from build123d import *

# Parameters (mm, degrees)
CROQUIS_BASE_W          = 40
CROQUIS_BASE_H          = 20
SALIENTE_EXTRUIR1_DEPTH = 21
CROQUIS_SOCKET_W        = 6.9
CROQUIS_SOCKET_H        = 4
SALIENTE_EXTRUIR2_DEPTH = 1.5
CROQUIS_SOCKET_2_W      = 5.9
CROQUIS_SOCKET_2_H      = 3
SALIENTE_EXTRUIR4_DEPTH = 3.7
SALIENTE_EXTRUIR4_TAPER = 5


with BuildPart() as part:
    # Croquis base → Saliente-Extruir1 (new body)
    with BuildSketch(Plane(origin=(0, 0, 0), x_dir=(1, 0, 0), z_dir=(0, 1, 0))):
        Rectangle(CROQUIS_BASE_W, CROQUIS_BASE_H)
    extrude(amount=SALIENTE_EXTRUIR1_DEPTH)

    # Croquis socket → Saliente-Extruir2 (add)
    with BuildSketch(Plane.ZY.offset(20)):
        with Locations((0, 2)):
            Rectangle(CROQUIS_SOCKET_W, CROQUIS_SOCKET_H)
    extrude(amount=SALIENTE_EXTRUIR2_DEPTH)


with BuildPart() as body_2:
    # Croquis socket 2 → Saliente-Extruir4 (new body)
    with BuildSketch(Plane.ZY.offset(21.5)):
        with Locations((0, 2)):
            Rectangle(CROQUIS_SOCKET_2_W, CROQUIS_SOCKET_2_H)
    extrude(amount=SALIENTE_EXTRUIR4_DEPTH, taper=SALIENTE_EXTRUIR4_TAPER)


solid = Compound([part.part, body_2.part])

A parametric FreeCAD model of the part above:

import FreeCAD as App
import Part
import Sketcher
Q = App.Units.Quantity

doc = App.newDocument("Part")
body = doc.addObject("PartDesign::Body", "Body")

sketch1 = body.newObject("Sketcher::SketchObject", "Sketch")
sketch1.AttachmentSupport = (doc.getObject("XZ_Plane"), [""])
sketch1.MapMode = "FlatFace"
sketch1.addGeometry(Part.LineSegment(App.Vector(-20, -10, 0), App.Vector(-20, 10, 0)), False)
sketch1.addGeometry(Part.LineSegment(App.Vector(-20, 10, 0), App.Vector(20, 10, 0)), False)
sketch1.addGeometry(Part.LineSegment(App.Vector(20, 10, 0), App.Vector(20, -10, 0)), False)
sketch1.addGeometry(Part.LineSegment(App.Vector(20, -10, 0), App.Vector(-20, -10, 0)), False)
sketch1.addConstraint(Sketcher.Constraint("Coincident", 0, 2, 1, 1))
sketch1.addConstraint(Sketcher.Constraint("Coincident", 1, 2, 2, 1))
sketch1.addConstraint(Sketcher.Constraint("Coincident", 2, 2, 3, 1))
sketch1.addConstraint(Sketcher.Constraint("Coincident", 3, 2, 0, 1))
sketch1.addConstraint(Sketcher.Constraint("Vertical", 0))
sketch1.addConstraint(Sketcher.Constraint("Horizontal", 1))
sketch1.addConstraint(Sketcher.Constraint("Vertical", 2))
sketch1.addConstraint(Sketcher.Constraint("Horizontal", 3))
sketch1.addConstraint(Sketcher.Constraint("Symmetric", 0, 2, 2, 2, -1, 1))
sketch1.addConstraint(Sketcher.Constraint("DistanceX", 1, 1, 1, 2, Q("40 mm")))
sketch1.addConstraint(Sketcher.Constraint("DistanceY", 0, 1, 0, 2, Q("20 mm")))
pad1 = body.newObject("PartDesign::Pad", "Pad")
pad1.Profile = sketch1
pad1.Length = 21
pad1.Reversed = True

sketch2 = body.newObject("Sketcher::SketchObject", "Sketch001")
sketch2.AttachmentSupport = (doc.getObject("YZ_Plane"), [""])
sketch2.MapMode = "FlatFace"
sketch2.AttachmentOffset = App.Placement(App.Vector(0, 0, -20), App.Rotation())
sketch2.addGeometry(Part.LineSegment(App.Vector(4, -3.45, 0), App.Vector(0, -3.45, 0)), False)
sketch2.addGeometry(Part.LineSegment(App.Vector(0, -3.45, 0), App.Vector(0, 3.45, 0)), False)
sketch2.addGeometry(Part.LineSegment(App.Vector(0, 3.45, 0), App.Vector(4, 3.45, 0)), False)
sketch2.addGeometry(Part.LineSegment(App.Vector(4, 3.45, 0), App.Vector(4, -3.45, 0)), False)
sketch2.addConstraint(Sketcher.Constraint("Coincident", 0, 2, 1, 1))
sketch2.addConstraint(Sketcher.Constraint("Coincident", 1, 2, 2, 1))
sketch2.addConstraint(Sketcher.Constraint("Coincident", 2, 2, 3, 1))
sketch2.addConstraint(Sketcher.Constraint("Coincident", 3, 2, 0, 1))
sketch2.addConstraint(Sketcher.Constraint("Horizontal", 0))
sketch2.addConstraint(Sketcher.Constraint("Vertical", 1))
sketch2.addConstraint(Sketcher.Constraint("Horizontal", 2))
sketch2.addConstraint(Sketcher.Constraint("Vertical", 3))
sketch2.addConstraint(Sketcher.Constraint("Symmetric", 0, 2, 1, 2, -1, 1))
sketch2.addConstraint(Sketcher.Constraint("DistanceX", 0, 2, 0, 1, Q("4 mm")))
sketch2.addConstraint(Sketcher.Constraint("DistanceY", 1, 1, 1, 2, Q("6.9 mm")))
pad2 = body.newObject("PartDesign::Pad", "Pad001")
pad2.Profile = sketch2
pad2.Length = 1.5
pad2.Reversed = True
body2 = doc.addObject("PartDesign::Body", "Body001")

sketch3 = body2.newObject("Sketcher::SketchObject", "Sketch002")
sketch3.AttachmentSupport = (doc.getObject("YZ_Plane001"), [""])
sketch3.MapMode = "FlatFace"
sketch3.AttachmentOffset = App.Placement(App.Vector(0, 0, -21.5), App.Rotation())
sketch3.addGeometry(Part.LineSegment(App.Vector(3.5, -2.95, 0), App.Vector(0.5, -2.95, 0)), False)
sketch3.addGeometry(Part.LineSegment(App.Vector(0.5, -2.95, 0), App.Vector(0.5, 2.95, 0)), False)
sketch3.addGeometry(Part.LineSegment(App.Vector(0.5, 2.95, 0), App.Vector(3.5, 2.95, 0)), False)
sketch3.addGeometry(Part.LineSegment(App.Vector(3.5, 2.95, 0), App.Vector(3.5, -2.95, 0)), False)
sketch3.addConstraint(Sketcher.Constraint("Coincident", 0, 2, 1, 1))
sketch3.addConstraint(Sketcher.Constraint("Coincident", 1, 2, 2, 1))
sketch3.addConstraint(Sketcher.Constraint("Coincident", 2, 2, 3, 1))
sketch3.addConstraint(Sketcher.Constraint("Coincident", 3, 2, 0, 1))
sketch3.addConstraint(Sketcher.Constraint("Horizontal", 0))
sketch3.addConstraint(Sketcher.Constraint("Vertical", 1))
sketch3.addConstraint(Sketcher.Constraint("Horizontal", 2))
sketch3.addConstraint(Sketcher.Constraint("Vertical", 3))
sketch3.addConstraint(Sketcher.Constraint("DistanceX", 0, 2, 0, 1, Q("3 mm")))
sketch3.addConstraint(Sketcher.Constraint("DistanceY", 1, 1, 1, 2, Q("5.9 mm")))
sketch3.addConstraint(Sketcher.Constraint("DistanceX", -1, 1, 0, 2, Q("0.5 mm")))
sketch3.addConstraint(Sketcher.Constraint("DistanceY", 0, 2, -1, 1, Q("2.95 mm")))
pad3 = body2.newObject("PartDesign::Pad", "Pad002")
pad3.Profile = sketch3
pad3.Length = 3.7
pad3.Reversed = True
pad3.TaperAngle = -5

doc.recompute()
